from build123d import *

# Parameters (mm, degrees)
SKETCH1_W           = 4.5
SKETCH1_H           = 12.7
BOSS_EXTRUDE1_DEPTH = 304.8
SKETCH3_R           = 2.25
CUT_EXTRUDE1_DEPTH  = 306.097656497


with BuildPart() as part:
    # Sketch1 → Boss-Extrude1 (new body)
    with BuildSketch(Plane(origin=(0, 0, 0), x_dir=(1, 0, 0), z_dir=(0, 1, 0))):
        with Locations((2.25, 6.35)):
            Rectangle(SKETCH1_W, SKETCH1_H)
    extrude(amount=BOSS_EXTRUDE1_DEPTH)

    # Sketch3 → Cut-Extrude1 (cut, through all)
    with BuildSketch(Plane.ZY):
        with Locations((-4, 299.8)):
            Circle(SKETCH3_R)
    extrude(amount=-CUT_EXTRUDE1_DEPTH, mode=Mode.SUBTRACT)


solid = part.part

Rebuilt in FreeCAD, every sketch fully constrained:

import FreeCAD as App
import Part
import Sketcher

V = App.Vector
Q = App.Units.Quantity


def add_polygon(sketch, points):
    """Adds a closed chain of lines whose ends are joined by coincident constraints."""
    first, n = sketch.GeometryCount, len(points)
    for a, b in zip(points, points[1:] + points[:1]):
        sketch.addGeometry(Part.LineSegment(App.Vector(*a, 0), App.Vector(*b, 0)), False)
    for i in range(n):
        sketch.addConstraint(Sketcher.Constraint("Coincident", first + i, 2, first + (i + 1) % n, 1))

doc = App.newDocument("Part")
body = doc.addObject("PartDesign::Body", "Body")

# Sketch on XZ plane
sketch1 = body.newObject("Sketcher::SketchObject", "Sketch")
sketch1.AttachmentSupport = (doc.getObject("XZ_Plane"), [""])
sketch1.MapMode = "FlatFace"
add_polygon(sketch1, [(0, -12.7), (0, 0), (4.5, 0), (4.5, -12.7)])  # lines 0-3
sketch1.addConstraint([
    Sketcher.Constraint("Vertical", 0),
    Sketcher.Constraint("Horizontal", 1),
    Sketcher.Constraint("Vertical", 2),
    Sketcher.Constraint("Horizontal", 3),
    Sketcher.Constraint("Coincident", 0, 2, -1, 1),
    Sketcher.Constraint("DistanceY", 0, 1, 0, 2, Q("0.5 in")),
    Sketcher.Constraint("DistanceX", 1, 1, 1, 2, Q("4.5 mm")),
])
pad1 = body.newObject("PartDesign::Pad", "Pad")
pad1.Profile = sketch1
pad1.Length = Q("12 in")
pad1.Reversed = True

# Sketch on YZ plane
sketch2 = body.newObject("Sketcher::SketchObject", "Sketch001")
sketch2.AttachmentSupport = (doc.getObject("YZ_Plane"), [""])
sketch2.MapMode = "FlatFace"
sketch2.addGeometry(Part.Circle(V(299.8, -4, 0), V(0, 0, 1), 2.2), False)
sketch2.addConstraint([
    Sketcher.Constraint("Diameter", 0, Q("4.5 mm")),
    Sketcher.Constraint("DistanceX", -1, 1, 0, 3, Q("299.8 mm")),
    Sketcher.Constraint("DistanceY", 0, 3, -1, 1, Q("4 mm")),
])
pocket1 = body.newObject("PartDesign::Pocket", "Pocket")
pocket1.Profile = sketch2
pocket1.Type = "ThroughAll"
pocket1.Reversed = True

doc.recompute()
